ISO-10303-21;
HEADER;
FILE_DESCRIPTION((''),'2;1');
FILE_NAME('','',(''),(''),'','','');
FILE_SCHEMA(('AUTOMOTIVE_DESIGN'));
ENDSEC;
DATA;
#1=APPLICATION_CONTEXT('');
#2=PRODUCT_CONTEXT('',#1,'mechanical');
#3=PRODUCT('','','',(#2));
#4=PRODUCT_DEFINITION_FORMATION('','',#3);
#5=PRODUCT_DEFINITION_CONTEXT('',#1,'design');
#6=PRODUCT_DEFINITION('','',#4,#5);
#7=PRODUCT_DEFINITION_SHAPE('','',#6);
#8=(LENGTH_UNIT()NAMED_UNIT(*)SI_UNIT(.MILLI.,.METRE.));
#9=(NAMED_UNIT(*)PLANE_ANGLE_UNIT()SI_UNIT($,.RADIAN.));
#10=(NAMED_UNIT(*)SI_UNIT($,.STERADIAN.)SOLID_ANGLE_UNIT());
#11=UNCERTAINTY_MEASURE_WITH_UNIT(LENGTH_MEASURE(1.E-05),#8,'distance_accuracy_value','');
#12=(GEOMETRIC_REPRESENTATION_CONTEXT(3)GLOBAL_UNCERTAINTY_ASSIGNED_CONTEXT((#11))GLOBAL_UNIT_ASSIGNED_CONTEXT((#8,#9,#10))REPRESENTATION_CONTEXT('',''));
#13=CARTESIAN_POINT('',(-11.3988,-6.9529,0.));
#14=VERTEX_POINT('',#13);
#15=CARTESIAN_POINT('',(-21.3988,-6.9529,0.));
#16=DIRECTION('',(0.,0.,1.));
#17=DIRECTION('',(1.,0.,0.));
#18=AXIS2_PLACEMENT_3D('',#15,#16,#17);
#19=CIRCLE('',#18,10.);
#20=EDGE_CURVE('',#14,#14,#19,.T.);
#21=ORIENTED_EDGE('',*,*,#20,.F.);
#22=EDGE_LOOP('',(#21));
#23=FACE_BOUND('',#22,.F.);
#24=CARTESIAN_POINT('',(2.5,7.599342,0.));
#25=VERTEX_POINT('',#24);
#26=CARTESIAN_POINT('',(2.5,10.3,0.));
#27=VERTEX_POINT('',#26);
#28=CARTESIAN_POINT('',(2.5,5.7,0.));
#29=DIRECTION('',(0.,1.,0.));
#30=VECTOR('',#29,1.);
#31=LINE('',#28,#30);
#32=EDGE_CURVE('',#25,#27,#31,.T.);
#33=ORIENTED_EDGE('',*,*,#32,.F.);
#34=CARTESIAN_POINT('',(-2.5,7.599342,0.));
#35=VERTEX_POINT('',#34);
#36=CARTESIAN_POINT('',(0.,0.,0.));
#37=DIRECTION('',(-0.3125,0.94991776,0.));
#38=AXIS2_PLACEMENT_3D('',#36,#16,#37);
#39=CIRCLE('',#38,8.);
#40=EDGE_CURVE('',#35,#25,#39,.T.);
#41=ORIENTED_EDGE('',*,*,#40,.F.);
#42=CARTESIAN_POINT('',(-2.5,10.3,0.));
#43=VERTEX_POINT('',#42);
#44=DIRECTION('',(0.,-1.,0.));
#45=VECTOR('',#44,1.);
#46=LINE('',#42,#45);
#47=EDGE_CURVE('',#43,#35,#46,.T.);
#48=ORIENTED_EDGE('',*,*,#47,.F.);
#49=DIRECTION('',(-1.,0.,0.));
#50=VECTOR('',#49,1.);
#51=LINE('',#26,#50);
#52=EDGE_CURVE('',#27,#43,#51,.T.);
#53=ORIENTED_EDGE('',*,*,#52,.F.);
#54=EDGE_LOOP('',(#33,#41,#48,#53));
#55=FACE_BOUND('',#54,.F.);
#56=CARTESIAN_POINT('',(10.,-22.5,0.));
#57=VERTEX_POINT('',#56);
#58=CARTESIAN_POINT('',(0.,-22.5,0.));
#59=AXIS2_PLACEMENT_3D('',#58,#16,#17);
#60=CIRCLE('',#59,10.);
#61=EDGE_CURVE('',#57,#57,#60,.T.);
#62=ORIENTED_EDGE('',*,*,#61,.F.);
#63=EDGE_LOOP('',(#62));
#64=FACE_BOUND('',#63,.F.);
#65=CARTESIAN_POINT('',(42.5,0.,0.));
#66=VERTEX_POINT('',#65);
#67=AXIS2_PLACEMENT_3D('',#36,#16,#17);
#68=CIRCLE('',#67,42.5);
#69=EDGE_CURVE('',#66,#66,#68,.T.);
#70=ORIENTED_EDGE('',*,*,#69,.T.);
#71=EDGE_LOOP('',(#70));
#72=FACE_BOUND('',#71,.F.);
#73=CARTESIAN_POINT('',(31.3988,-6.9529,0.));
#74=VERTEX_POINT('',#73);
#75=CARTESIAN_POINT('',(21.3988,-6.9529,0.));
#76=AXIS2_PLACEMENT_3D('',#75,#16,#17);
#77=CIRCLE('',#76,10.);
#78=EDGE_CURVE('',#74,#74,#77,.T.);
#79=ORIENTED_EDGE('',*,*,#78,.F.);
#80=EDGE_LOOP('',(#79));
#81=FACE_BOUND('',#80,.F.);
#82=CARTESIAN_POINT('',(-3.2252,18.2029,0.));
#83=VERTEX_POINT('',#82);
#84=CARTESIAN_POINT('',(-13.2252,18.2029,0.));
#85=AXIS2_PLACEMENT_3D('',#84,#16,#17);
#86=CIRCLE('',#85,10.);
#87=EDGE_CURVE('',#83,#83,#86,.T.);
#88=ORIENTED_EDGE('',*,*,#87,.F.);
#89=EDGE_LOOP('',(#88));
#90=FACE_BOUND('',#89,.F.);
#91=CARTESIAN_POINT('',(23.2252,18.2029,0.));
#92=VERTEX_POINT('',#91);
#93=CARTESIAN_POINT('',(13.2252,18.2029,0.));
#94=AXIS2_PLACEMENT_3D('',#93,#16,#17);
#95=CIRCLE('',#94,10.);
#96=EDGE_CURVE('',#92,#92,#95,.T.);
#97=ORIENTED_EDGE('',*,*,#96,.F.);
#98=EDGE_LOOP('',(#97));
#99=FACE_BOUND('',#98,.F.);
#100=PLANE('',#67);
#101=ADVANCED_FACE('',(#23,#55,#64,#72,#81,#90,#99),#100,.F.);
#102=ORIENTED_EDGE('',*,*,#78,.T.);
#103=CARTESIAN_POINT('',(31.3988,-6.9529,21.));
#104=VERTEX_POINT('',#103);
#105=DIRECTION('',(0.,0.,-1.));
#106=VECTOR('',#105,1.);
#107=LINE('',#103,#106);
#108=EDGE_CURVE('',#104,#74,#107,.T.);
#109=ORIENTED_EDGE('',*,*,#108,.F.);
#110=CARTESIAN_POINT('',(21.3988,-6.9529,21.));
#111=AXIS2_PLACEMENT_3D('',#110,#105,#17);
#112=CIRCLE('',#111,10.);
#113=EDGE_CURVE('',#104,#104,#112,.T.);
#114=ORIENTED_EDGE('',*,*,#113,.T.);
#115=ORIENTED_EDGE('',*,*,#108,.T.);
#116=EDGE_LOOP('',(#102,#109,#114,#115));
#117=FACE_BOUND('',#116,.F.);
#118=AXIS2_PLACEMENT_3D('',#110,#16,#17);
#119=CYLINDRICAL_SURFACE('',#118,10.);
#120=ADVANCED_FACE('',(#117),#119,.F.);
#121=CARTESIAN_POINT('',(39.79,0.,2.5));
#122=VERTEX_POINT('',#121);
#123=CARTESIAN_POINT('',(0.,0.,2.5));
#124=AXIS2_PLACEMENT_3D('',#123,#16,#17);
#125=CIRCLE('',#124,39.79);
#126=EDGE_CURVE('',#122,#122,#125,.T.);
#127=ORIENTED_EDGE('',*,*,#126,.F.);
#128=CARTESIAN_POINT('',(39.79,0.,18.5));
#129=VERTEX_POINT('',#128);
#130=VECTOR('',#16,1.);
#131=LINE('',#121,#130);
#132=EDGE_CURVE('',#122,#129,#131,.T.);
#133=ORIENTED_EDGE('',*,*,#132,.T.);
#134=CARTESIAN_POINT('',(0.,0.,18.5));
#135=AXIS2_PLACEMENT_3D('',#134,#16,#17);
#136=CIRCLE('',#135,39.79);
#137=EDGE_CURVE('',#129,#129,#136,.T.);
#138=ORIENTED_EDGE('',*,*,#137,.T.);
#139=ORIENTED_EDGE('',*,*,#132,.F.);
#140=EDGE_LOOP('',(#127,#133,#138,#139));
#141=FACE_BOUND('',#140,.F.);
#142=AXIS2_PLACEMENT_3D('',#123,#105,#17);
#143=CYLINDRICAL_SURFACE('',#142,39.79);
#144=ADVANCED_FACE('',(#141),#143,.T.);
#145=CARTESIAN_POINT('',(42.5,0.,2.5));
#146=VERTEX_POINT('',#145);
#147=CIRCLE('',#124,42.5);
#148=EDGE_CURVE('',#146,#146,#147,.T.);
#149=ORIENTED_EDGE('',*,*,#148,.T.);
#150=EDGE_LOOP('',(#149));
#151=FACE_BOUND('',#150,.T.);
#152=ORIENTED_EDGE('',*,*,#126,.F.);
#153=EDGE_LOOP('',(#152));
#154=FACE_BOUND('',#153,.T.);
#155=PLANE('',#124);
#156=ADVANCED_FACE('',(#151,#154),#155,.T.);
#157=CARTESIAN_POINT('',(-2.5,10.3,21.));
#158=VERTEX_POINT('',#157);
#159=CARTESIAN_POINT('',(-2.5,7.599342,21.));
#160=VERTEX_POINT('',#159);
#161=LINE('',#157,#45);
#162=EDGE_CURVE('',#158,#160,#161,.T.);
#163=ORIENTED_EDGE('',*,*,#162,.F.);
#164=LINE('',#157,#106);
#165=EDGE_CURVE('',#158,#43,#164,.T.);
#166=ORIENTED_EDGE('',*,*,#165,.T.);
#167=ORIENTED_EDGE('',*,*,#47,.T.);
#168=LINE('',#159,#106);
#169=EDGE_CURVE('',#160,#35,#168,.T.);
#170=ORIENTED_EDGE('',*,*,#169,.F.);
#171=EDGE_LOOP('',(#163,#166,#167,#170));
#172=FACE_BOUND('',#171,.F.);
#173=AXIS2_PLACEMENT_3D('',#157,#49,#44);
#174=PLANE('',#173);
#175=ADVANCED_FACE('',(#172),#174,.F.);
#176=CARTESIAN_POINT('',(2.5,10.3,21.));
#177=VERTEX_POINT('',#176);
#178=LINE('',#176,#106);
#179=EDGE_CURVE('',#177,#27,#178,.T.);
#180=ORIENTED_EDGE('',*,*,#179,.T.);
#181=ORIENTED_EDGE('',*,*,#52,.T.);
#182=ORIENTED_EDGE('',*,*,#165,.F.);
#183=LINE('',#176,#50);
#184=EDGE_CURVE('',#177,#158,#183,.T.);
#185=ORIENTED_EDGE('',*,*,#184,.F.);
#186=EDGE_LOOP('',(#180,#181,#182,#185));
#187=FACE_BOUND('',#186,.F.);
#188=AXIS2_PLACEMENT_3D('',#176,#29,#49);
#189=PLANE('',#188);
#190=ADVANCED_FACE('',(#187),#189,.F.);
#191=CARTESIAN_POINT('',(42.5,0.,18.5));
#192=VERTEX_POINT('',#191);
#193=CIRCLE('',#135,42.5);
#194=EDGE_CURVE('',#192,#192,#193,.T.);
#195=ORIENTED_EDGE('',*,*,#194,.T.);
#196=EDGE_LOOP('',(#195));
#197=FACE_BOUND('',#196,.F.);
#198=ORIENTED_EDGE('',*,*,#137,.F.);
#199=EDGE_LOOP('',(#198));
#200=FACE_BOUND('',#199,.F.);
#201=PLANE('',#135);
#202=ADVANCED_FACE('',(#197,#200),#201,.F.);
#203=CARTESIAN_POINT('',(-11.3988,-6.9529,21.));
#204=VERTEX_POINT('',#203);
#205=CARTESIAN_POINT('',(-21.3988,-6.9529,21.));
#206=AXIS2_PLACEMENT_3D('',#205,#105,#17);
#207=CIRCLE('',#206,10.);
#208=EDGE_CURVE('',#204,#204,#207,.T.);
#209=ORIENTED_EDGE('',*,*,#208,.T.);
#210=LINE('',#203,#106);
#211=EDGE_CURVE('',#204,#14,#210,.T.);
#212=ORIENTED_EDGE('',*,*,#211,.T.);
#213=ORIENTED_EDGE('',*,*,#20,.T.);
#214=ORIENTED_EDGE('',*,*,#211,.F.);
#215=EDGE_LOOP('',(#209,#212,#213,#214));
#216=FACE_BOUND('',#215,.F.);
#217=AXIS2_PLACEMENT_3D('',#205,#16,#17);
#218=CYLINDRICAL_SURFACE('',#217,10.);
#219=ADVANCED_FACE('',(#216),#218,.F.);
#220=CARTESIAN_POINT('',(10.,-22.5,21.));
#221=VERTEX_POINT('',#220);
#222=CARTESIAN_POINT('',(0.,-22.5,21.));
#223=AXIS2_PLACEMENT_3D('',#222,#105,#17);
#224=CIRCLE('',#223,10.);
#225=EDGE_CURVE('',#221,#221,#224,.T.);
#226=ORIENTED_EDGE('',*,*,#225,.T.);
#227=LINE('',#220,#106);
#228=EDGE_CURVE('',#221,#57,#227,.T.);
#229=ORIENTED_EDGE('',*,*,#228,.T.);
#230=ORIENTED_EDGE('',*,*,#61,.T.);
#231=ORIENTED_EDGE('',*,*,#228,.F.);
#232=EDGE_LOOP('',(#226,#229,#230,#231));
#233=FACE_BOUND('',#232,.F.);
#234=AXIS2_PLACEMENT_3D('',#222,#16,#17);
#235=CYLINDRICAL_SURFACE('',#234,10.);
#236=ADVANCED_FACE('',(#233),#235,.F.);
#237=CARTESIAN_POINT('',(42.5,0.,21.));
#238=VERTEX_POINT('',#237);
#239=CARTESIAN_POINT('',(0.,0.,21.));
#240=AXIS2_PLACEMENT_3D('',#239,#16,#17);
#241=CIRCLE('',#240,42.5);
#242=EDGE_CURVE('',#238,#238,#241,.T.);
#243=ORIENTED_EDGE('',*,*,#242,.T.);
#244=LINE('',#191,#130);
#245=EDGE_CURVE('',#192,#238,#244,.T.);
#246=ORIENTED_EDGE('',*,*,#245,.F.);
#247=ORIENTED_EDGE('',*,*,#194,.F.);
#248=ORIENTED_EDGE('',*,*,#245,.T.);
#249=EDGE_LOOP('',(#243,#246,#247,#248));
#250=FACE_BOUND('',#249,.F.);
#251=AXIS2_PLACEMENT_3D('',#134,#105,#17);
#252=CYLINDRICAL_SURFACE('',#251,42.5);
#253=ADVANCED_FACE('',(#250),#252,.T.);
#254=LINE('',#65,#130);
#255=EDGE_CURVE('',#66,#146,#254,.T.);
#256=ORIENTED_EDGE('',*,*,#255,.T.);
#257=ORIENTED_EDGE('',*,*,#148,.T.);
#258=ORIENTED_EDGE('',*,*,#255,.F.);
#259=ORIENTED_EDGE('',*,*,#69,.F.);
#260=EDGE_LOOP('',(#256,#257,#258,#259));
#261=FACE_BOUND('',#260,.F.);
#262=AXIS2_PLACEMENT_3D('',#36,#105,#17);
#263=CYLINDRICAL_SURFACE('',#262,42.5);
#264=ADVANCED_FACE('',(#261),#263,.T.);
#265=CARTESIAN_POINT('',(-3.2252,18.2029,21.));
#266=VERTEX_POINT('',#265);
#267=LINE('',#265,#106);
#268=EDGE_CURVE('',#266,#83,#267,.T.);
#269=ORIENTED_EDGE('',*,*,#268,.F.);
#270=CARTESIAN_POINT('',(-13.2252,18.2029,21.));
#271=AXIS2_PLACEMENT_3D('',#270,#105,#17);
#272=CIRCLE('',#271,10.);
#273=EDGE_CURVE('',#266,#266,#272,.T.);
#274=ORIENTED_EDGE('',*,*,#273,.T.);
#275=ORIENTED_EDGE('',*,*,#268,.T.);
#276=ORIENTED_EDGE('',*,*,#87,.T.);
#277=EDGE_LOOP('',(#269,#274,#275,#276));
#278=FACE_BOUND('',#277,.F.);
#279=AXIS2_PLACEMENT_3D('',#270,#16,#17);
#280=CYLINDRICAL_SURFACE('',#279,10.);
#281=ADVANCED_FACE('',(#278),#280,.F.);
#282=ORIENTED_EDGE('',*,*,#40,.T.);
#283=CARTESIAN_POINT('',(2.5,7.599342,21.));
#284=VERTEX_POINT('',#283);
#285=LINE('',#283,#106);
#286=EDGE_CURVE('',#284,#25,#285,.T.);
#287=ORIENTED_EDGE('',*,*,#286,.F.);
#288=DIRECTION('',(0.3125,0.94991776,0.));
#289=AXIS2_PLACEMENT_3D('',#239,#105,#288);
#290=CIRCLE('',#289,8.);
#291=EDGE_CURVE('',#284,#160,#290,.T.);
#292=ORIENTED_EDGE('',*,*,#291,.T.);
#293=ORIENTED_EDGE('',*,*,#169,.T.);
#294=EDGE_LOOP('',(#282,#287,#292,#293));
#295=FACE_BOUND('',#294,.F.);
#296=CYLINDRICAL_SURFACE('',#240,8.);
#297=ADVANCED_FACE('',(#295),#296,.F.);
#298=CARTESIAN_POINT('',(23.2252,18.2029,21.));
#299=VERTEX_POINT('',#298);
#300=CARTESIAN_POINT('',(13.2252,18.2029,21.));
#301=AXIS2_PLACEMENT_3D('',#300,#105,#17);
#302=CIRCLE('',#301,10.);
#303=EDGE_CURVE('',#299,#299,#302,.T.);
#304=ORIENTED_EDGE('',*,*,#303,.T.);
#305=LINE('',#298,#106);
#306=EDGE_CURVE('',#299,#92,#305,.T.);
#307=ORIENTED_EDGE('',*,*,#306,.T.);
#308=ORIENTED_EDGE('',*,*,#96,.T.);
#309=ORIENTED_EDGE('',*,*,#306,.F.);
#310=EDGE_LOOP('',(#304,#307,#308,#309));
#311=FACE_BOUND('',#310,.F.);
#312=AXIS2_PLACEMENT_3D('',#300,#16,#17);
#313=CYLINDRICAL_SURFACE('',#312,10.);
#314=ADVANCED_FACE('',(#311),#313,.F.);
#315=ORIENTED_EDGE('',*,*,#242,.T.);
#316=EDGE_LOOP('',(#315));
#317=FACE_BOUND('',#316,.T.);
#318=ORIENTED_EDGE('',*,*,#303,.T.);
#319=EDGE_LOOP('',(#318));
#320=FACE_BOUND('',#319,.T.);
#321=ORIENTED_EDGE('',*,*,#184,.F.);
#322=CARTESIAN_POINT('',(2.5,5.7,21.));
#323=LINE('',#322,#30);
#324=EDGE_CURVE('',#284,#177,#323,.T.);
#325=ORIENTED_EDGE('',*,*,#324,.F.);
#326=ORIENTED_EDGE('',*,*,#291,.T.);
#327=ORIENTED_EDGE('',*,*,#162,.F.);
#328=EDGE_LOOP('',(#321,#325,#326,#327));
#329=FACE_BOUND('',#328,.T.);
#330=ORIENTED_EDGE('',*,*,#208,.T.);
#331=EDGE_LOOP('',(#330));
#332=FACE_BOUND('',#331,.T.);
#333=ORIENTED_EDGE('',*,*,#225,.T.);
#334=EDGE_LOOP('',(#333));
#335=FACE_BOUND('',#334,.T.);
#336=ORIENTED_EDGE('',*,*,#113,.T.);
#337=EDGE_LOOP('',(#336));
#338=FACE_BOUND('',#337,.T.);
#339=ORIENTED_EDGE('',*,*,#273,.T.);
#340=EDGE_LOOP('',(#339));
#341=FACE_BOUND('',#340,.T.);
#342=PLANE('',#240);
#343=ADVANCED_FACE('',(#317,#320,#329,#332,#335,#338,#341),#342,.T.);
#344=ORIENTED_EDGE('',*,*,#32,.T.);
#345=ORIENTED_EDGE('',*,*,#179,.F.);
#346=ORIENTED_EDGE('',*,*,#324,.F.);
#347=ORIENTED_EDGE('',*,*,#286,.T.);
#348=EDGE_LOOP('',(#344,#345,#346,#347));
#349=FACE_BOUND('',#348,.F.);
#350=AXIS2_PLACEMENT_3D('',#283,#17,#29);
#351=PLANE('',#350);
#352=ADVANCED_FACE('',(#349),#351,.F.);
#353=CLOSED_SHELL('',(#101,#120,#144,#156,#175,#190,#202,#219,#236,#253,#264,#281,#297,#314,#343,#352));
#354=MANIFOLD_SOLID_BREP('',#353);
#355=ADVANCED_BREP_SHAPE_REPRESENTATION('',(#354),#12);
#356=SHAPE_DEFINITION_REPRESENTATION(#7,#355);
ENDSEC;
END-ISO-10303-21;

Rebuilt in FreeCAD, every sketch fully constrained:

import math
import FreeCAD as App
import Part
import Sketcher
from FreeCAD import Vector
Q = App.Units.Quantity

doc = App.newDocument("Part")
body = doc.addObject("PartDesign::Body", "Body")

# Sketch on XY plane
sketch1 = body.newObject("Sketcher::SketchObject", "Sketch")
sketch1.AttachmentSupport = (doc.getObject("XY_Plane"), [""])
sketch1.MapMode = "FlatFace"
sketch1.addGeometry(Part.Circle(Vector(0, 0, 0), Vector(0, 0, 1), 42), False)
sketch1.addConstraint([
    Sketcher.Constraint("Coincident", 0, 3, -1, 1),
    Sketcher.Constraint("Diameter", 0, Q("85 mm")),
])
pad1 = body.newObject("PartDesign::Pad", "Pad")
pad1.Profile = sketch1
pad1.Length = 2.5

# Sketch on XY plane
sketch2 = body.newObject("Sketcher::SketchObject", "Sketch001")
sketch2.AttachmentSupport = (doc.getObject("XY_Plane"), [""])
sketch2.MapMode = "FlatFace"
sketch2.AttachmentOffset = App.Placement(Vector(0, 0, 2.5), App.Rotation())
sketch2.addGeometry(Part.Circle(Vector(0, 0, 0), Vector(0, 0, 1), 40), False)
sketch2.addConstraint([
    Sketcher.Constraint("Coincident", 0, 3, -1, 1),
    Sketcher.Constraint("Diameter", 0, Q("79.58 mm")),
])
pad2 = body.newObject("PartDesign::Pad", "Pad001")
pad2.Profile = sketch2
pad2.Length = 16

# Sketch on XY plane
sketch3 = body.newObject("Sketcher::SketchObject", "Sketch002")
sketch3.AttachmentSupport = (doc.getObject("XY_Plane"), [""])
sketch3.MapMode = "FlatFace"
sketch3.AttachmentOffset = App.Placement(Vector(0, 0, 18.5), App.Rotation())
sketch3.addGeometry(Part.Circle(Vector(0, 0, 0), Vector(0, 0, 1), 42), False)
sketch3.addConstraint([
    Sketcher.Constraint("Coincident", 0, 3, -1, 1),
    Sketcher.Constraint("Diameter", 0, Q("85 mm")),
])
pad3 = body.newObject("PartDesign::Pad", "Pad002")
pad3.Profile = sketch3
pad3.Length = 2.5

# Sketch on XY plane
sketch4 = body.newObject("Sketcher::SketchObject", "Sketch003")
sketch4.AttachmentSupport = (doc.getObject("XY_Plane"), [""])
sketch4.MapMode = "FlatFace"
sketch4.AttachmentOffset = App.Placement(Vector(0, 0, 21), App.Rotation())
sketch4.addGeometry([
    Part.LineSegment(Vector(2.5, 7.6, 0), Vector(2.5, 10.3, 0)),  # 0
    Part.LineSegment(Vector(2.5, 10.3, 0), Vector(-2.5, 10.3, 0)),  # 1
    Part.LineSegment(Vector(-2.5, 10.3, 0), Vector(-2.5, 7.6, 0)),  # 2
    Part.ArcOfCircle(Part.Circle(Vector(0, 0, 0), Vector(0, 0, 1), 8), math.radians(108), math.radians(432)),  # 3
    Part.Circle(Vector(0, -22.5, 0), Vector(0, 0, 1), 10),  # 4
    Part.Circle(Vector(21.4, -7, 0), Vector(0, 0, 1), 10),  # 5
    Part.Circle(Vector(-21.4, -7, 0), Vector(0, 0, 1), 10),  # 6
    Part.Circle(Vector(13.2, 18.2, 0), Vector(0, 0, 1), 10),  # 7
    Part.Circle(Vector(-13.2, 18.2, 0), Vector(0, 0, 1), 10),  # 8
], False)
sketch4.addConstraint([
    Sketcher.Constraint("Coincident", 0, 2, 1, 1),
    Sketcher.Constraint("Coincident", 1, 2, 2, 1),
    Sketcher.Constraint("Coincident", 2, 2, 3, 1),
    Sketcher.Constraint("Coincident", 3, 2, 0, 1),
    Sketcher.Constraint("Vertical", 0),
    Sketcher.Constraint("Horizontal", 1),
    Sketcher.Constraint("Vertical", 2),
    Sketcher.Constraint("Coincident", 3, 3, -1, 1),
    Sketcher.Constraint("Equal", 4, 5),
    Sketcher.Constraint("Equal", 5, 6),
    Sketcher.Constraint("Equal", 6, 7),
    Sketcher.Constraint("Equal", 7, 8),
    Sketcher.Constraint("Symmetric", 5, 3, 6, 3, -2),
    Sketcher.Constraint("Symmetric", 7, 3, 8, 3, -2),
    Sketcher.Constraint("PointOnObject", 4, 3, -2),
    Sketcher.Constraint("Horizontal", 2, 2, 3, 2),
    Sketcher.Constraint("Diameter", 4, Q("20 mm")),
    Sketcher.Constraint("Radius", 3, Q("8 mm")),
    Sketcher.Constraint("DistanceX", 1, 2, 1, 1, Q("5 mm")),
    Sketcher.Constraint("DistanceY", 4, 3, -1, 1, Q("22.5 mm")),
    Sketcher.Constraint("DistanceY", -1, 1, 0, 2, Q("10.3 mm")),
    Sketcher.Constraint("DistanceY", 5, 3, -1, 1, Q("6.953 mm")),
    Sketcher.Constraint("DistanceY", -1, 1, 7, 3, Q("18.203 mm")),
    Sketcher.Constraint("DistanceX", 6, 3, 7, 3, Q("34.624 mm")),
    Sketcher.Constraint("DistanceX", -1, 1, 5, 3, Q("21.3988 mm")),
])
pocket1 = body.newObject("PartDesign::Pocket", "Pocket")
pocket1.Profile = sketch4
pocket1.Length = 21

doc.recompute()
